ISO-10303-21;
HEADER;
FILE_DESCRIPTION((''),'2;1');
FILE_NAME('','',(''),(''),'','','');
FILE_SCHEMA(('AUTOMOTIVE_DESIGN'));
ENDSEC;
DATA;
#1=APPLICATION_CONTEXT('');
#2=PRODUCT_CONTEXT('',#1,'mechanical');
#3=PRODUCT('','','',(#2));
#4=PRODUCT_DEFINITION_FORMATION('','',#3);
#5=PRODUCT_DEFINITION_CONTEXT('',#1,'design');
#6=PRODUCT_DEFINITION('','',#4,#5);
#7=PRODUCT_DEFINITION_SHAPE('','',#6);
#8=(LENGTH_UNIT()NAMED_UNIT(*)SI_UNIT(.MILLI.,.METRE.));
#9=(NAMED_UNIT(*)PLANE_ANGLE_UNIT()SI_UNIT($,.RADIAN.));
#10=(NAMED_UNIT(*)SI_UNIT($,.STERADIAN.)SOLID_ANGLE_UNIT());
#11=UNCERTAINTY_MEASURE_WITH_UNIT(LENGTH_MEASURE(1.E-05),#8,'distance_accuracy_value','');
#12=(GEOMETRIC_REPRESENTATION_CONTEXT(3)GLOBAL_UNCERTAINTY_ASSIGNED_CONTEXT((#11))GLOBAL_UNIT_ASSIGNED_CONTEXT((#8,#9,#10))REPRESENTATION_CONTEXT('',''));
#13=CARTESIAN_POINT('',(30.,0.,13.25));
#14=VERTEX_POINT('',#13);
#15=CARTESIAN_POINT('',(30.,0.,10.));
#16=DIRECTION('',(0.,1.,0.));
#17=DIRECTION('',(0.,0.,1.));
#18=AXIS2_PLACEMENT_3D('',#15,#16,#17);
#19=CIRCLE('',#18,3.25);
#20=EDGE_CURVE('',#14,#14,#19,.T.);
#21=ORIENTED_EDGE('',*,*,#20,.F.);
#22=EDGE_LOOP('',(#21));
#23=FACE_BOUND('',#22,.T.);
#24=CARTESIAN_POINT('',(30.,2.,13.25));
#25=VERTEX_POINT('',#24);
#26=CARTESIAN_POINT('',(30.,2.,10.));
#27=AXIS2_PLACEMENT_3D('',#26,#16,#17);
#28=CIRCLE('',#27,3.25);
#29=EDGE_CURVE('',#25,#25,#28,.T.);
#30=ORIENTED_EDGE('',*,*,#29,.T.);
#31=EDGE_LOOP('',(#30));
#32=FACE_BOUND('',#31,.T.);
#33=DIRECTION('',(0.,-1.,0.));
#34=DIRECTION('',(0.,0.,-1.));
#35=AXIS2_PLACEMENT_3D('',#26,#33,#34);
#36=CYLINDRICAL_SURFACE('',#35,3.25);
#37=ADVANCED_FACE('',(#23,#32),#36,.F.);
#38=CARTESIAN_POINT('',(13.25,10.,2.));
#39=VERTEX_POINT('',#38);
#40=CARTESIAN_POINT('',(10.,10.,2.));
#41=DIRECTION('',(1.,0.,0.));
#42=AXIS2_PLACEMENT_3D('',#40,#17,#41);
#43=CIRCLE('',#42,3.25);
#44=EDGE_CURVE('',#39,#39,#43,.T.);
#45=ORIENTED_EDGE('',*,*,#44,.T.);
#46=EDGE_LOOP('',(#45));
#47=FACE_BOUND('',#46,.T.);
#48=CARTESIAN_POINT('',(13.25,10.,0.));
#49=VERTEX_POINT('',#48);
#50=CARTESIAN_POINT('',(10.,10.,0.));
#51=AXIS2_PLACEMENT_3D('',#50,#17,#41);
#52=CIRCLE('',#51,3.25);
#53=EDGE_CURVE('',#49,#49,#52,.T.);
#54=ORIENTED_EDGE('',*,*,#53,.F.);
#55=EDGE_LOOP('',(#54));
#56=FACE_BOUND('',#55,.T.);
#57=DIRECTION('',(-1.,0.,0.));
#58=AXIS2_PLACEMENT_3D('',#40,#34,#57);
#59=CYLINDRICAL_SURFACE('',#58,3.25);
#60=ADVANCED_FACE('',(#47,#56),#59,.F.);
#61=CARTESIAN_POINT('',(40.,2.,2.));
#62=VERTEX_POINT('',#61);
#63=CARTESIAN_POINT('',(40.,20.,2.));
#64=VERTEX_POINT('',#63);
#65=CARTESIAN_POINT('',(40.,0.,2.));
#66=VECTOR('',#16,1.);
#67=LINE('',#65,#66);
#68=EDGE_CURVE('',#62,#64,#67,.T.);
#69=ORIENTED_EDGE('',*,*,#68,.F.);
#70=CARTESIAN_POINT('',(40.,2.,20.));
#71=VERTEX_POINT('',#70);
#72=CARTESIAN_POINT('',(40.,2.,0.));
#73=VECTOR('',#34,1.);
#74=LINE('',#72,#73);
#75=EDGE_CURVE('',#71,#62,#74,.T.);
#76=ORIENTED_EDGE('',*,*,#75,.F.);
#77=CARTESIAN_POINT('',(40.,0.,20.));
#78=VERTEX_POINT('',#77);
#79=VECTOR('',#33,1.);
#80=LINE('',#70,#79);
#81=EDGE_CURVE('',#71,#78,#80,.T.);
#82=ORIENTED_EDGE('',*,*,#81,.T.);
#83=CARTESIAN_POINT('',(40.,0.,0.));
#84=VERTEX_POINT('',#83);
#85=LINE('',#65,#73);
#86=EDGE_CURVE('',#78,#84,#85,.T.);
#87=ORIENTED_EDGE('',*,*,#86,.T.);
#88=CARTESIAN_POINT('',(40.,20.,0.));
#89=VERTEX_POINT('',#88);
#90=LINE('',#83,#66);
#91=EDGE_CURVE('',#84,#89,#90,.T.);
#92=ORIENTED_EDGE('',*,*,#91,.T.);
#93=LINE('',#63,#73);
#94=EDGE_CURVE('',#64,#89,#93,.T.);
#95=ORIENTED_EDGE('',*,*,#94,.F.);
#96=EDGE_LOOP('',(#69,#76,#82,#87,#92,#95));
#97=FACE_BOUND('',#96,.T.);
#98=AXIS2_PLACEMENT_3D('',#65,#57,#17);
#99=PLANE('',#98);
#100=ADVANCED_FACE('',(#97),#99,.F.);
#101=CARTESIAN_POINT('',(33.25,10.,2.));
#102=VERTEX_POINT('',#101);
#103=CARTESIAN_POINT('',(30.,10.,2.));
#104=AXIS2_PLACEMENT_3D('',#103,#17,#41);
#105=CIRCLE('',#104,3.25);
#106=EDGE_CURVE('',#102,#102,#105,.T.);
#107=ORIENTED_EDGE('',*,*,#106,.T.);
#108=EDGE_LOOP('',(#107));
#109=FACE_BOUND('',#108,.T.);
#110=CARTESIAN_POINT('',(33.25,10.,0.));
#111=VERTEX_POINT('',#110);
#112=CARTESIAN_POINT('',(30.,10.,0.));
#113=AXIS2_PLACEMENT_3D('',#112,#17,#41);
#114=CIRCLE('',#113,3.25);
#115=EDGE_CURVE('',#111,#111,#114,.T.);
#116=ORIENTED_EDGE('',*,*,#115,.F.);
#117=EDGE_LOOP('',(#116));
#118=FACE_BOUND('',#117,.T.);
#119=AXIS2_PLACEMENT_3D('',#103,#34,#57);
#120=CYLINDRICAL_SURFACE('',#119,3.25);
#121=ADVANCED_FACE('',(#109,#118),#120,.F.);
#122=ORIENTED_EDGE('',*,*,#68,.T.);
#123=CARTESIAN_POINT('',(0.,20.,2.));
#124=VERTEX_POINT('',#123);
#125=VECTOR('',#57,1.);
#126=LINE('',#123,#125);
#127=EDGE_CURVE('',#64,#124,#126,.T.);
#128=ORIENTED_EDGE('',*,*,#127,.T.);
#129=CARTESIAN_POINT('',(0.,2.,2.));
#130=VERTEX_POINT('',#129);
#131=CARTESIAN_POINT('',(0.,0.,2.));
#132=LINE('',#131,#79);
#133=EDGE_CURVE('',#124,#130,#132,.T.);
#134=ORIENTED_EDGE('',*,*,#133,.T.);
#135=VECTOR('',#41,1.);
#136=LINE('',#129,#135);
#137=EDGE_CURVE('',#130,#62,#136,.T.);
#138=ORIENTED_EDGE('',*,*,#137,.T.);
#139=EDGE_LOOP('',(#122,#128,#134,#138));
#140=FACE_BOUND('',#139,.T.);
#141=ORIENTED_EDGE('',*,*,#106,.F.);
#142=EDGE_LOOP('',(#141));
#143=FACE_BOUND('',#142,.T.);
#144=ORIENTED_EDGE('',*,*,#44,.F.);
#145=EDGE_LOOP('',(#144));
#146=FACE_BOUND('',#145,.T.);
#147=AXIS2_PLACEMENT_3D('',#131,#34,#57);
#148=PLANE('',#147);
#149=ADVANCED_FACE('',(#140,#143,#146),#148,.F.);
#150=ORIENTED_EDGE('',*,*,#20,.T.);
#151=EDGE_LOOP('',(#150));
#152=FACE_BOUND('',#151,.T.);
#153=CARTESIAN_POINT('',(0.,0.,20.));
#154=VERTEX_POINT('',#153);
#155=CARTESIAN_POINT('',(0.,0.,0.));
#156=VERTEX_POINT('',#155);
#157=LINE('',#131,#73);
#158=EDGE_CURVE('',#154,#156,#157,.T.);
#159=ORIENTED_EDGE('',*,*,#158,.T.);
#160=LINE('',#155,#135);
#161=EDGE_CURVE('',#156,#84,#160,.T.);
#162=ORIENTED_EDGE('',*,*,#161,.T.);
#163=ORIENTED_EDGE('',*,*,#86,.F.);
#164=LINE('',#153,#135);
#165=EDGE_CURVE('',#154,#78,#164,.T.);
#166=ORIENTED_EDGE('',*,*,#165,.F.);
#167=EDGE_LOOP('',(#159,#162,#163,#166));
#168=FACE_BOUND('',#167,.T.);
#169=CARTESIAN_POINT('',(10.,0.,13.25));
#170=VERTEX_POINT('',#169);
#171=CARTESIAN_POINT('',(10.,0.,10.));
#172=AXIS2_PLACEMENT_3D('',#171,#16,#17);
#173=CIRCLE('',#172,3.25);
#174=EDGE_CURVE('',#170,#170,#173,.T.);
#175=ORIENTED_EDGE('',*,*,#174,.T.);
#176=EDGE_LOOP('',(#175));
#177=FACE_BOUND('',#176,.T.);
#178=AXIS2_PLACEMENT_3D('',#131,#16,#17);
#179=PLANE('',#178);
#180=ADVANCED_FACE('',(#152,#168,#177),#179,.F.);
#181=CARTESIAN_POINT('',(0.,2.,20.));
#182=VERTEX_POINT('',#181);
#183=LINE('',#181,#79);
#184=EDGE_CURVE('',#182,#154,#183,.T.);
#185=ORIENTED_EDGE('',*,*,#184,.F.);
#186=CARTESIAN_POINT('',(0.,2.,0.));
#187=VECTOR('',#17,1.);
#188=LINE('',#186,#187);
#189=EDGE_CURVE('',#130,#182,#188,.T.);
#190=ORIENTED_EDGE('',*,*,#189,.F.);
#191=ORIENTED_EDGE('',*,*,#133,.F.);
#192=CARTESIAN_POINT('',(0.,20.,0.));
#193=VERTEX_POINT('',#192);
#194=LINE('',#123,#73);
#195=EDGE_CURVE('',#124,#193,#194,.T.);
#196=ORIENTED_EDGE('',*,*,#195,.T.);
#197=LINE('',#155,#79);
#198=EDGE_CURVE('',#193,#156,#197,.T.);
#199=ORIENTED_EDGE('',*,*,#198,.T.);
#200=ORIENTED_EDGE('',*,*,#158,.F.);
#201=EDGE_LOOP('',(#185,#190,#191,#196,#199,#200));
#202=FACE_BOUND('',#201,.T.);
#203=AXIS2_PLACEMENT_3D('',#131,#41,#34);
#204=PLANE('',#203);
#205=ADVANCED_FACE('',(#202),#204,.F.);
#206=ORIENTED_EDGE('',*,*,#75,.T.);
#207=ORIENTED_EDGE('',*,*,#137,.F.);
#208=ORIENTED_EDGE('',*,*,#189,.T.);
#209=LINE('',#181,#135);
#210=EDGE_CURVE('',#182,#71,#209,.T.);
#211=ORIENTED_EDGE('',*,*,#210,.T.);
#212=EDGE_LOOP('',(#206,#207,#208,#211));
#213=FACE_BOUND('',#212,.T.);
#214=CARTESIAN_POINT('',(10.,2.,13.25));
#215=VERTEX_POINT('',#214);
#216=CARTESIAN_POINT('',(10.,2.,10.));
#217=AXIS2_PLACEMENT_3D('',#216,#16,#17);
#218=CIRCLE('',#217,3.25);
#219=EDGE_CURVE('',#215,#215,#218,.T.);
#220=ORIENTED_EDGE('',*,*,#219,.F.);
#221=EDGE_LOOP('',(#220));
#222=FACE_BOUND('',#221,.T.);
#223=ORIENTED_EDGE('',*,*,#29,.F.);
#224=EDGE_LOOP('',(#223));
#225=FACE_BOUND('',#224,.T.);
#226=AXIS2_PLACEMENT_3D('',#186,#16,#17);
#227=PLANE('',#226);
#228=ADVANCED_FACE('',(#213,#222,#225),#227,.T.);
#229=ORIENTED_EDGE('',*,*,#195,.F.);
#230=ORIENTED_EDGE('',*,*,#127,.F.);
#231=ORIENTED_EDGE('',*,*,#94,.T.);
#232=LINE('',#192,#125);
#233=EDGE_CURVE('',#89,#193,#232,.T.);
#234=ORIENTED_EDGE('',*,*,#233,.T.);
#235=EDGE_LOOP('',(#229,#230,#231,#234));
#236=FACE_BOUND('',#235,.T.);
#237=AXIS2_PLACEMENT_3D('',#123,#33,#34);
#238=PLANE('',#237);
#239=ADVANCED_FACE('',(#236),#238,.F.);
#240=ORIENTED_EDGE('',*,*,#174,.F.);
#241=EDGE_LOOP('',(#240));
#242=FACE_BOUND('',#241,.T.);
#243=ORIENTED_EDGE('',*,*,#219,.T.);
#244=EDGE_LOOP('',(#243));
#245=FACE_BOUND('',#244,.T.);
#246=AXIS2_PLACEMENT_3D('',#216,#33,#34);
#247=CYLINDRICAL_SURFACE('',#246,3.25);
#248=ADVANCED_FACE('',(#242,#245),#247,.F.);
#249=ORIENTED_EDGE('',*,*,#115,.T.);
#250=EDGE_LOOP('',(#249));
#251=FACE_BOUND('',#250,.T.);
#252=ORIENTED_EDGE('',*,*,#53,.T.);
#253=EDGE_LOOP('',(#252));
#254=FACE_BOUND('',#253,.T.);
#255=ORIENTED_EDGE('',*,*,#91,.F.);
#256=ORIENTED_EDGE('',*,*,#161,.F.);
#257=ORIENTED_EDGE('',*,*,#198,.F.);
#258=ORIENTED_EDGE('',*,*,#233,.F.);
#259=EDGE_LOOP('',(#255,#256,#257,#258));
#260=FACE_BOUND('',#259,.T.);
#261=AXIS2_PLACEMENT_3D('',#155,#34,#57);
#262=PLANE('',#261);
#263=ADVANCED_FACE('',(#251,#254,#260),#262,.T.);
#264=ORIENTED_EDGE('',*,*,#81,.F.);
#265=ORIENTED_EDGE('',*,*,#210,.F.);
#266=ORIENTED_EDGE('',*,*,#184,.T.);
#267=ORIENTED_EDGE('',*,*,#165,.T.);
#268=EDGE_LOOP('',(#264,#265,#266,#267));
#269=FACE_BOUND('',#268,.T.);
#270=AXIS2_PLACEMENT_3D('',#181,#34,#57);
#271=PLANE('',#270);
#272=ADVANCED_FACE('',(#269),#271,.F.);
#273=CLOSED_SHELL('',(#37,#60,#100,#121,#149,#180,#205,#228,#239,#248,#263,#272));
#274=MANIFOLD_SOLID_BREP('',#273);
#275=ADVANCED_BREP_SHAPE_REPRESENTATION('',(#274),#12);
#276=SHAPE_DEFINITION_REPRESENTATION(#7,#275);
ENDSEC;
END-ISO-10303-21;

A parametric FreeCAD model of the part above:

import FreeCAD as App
import Part
import Sketcher

V = App.Vector


def add_polygon(sketch, points):
    """Adds a closed chain of lines whose ends are joined by coincident constraints."""
    first, n = sketch.GeometryCount, len(points)
    for a, b in zip(points, points[1:] + points[:1]):
        sketch.addGeometry(Part.LineSegment(App.Vector(*a, 0), App.Vector(*b, 0)), False)
    for i in range(n):
        sketch.addConstraint(Sketcher.Constraint("Coincident", first + i, 2, first + (i + 1) % n, 1))

doc = App.newDocument("Part")
body = doc.addObject("PartDesign::Body", "Body")

# Sketch on XY plane
sketch1 = body.newObject("Sketcher::SketchObject", "Sketch")
sketch1.AttachmentSupport = (doc.getObject("XY_Plane"), [""])
sketch1.MapMode = "FlatFace"
add_polygon(sketch1, [(0, 20), (0, 0), (40, 0), (40, 20)])  # lines 0-3
sketch1.addGeometry(Part.Circle(V(10, 10, 0), V(0, 0, 1), 3.25), False)  # 4
sketch1.addGeometry(Part.Circle(V(30, 10, 0), V(0, 0, 1), 3.25), False)  # 5
sketch1.addConstraint([
    Sketcher.Constraint("Vertical", 0),
    Sketcher.Constraint("Horizontal", 1),
    Sketcher.Constraint("Vertical", 2),
    Sketcher.Constraint("Horizontal", 3),
    Sketcher.Constraint("Coincident", 0, 2, -1, 1),
    Sketcher.Constraint("Equal", 4, 5),
    Sketcher.Constraint("Horizontal", 4, 3, 5, 3),
    Sketcher.Constraint("Diameter", 4, 6.5),
    Sketcher.Constraint("DistanceX", 1, 1, 1, 2, 40.0),
    Sketcher.Constraint("DistanceY", 0, 2, 0, 1, 20.0),
    Sketcher.Constraint("DistanceX", -1, 1, 4, 3, 10.0),
    Sketcher.Constraint("DistanceY", -1, 1, 4, 3, 10.0),
    Sketcher.Constraint("DistanceX", -1, 1, 5, 3, 30.0),
])
pad1 = body.newObject("PartDesign::Pad", "Pad")
pad1.Profile = sketch1
pad1.Length = 2

# Sketch on XZ plane
sketch2 = body.newObject("Sketcher::SketchObject", "Sketch001")
sketch2.AttachmentSupport = (doc.getObject("XZ_Plane"), [""])
sketch2.MapMode = "FlatFace"
add_polygon(sketch2, [(0, 0), (0, 20), (40, 20), (40, 0)])  # lines 0-3
sketch2.addGeometry(Part.Circle(V(10, 10, 0), V(0, 0, 1), 3.25), False)  # 4
sketch2.addGeometry(Part.Circle(V(30, 10, 0), V(0, 0, 1), 3.25), False)  # 5
sketch2.addConstraint([
    Sketcher.Constraint("Vertical", 0),
    Sketcher.Constraint("Horizontal", 1),
    Sketcher.Constraint("Vertical", 2),
    Sketcher.Constraint("Horizontal", 3),
    Sketcher.Constraint("Coincident", 3, 2, -1, 1),
    Sketcher.Constraint("Equal", 4, 5),
    Sketcher.Constraint("Horizontal", 4, 3, 5, 3),
    Sketcher.Constraint("Diameter", 4, 6.5),
    Sketcher.Constraint("DistanceX", 1, 1, 1, 2, 40.0),
    Sketcher.Constraint("DistanceY", 0, 1, 0, 2, 20.0),
    Sketcher.Constraint("DistanceX", -1, 1, 4, 3, 10.0),
    Sketcher.Constraint("DistanceY", -1, 1, 4, 3, 10.0),
    Sketcher.Constraint("DistanceX", -1, 1, 5, 3, 30.0),
])
pad2 = body.newObject("PartDesign::Pad", "Pad001")
pad2.Profile = sketch2
pad2.Length = 2
pad2.Reversed = True

doc.recompute()
